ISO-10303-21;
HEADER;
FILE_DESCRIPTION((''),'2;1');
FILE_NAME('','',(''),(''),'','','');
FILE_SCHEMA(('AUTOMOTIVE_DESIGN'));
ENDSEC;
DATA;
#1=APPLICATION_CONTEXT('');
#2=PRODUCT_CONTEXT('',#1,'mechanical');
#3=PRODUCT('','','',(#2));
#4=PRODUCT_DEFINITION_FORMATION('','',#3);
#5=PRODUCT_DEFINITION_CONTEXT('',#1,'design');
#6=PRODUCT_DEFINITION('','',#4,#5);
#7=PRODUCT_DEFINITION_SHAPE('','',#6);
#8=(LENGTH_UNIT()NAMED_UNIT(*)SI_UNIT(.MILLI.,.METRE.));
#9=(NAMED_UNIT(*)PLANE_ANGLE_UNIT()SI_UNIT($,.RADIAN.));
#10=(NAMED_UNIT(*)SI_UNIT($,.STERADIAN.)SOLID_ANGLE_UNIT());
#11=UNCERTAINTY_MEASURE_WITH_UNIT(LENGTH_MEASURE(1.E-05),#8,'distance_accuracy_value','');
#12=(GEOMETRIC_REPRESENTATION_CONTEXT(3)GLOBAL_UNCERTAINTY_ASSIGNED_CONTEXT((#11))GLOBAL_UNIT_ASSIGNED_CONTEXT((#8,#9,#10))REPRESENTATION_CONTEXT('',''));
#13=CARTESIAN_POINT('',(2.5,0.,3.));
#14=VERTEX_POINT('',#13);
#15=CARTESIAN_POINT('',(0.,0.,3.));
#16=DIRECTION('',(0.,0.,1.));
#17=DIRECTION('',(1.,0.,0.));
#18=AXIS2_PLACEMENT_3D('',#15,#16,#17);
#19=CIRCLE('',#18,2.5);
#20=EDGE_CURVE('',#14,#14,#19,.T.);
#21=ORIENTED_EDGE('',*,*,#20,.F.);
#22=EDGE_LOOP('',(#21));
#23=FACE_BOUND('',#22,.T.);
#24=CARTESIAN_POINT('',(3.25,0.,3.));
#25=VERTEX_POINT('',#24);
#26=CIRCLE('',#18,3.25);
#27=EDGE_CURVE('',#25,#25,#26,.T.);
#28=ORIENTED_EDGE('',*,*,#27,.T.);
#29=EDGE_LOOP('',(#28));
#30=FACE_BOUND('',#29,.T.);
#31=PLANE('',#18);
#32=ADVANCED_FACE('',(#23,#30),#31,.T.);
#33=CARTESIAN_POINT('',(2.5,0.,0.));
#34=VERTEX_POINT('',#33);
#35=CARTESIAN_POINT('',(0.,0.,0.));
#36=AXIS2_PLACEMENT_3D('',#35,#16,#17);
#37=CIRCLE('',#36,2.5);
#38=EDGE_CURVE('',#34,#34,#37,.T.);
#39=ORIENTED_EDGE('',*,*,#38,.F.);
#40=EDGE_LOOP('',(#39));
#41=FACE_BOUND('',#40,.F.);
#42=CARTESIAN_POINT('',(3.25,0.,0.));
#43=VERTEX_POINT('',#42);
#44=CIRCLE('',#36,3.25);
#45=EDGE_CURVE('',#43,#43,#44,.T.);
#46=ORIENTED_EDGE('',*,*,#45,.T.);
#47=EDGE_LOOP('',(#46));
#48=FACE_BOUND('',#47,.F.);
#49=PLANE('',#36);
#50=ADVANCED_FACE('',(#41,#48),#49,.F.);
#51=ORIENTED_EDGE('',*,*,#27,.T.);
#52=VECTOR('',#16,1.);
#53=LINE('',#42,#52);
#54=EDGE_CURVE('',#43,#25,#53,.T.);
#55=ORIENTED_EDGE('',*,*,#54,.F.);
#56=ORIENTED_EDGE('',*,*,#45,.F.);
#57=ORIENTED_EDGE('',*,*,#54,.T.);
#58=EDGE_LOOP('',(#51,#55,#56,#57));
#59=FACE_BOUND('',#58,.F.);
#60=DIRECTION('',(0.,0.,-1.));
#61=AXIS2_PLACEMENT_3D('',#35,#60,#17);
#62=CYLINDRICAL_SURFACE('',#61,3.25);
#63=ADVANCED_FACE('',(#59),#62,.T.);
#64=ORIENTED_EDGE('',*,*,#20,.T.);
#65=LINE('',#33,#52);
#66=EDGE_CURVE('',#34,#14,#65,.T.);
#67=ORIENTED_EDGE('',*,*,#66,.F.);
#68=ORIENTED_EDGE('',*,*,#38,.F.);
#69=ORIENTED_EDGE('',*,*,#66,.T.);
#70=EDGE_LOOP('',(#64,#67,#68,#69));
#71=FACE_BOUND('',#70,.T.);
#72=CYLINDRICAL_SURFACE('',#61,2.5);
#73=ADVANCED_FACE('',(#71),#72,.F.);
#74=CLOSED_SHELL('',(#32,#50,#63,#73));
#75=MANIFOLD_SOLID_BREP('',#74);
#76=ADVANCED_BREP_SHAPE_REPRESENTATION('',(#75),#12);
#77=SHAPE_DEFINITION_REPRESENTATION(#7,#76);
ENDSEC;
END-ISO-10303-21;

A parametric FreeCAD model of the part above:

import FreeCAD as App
import Part
import Sketcher
from FreeCAD import Vector

doc = App.newDocument("Part")
body = doc.addObject("PartDesign::Body", "Body")

# Sketch on XY plane
sketch1 = body.newObject("Sketcher::SketchObject", "Sketch")
sketch1.AttachmentSupport = (doc.getObject("XY_Plane"), [""])
sketch1.MapMode = "FlatFace"
sketch1.addGeometry([
    Part.Circle(Vector(0, 0, 0), Vector(0, 0, 1), 3.2),
    Part.Circle(Vector(0, 0, 0), Vector(0, 0, 1), 2.5),
], False)
sketch1.addConstraint([
    Sketcher.Constraint("Coincident", 0, 3, -1, 1),
    Sketcher.Constraint("Coincident", 1, 3, -1, 1),
    Sketcher.Constraint("Diameter", 1, 5.0),
    Sketcher.Constraint("Diameter", 0, 6.5),
])
pad1 = body.newObject("PartDesign::Pad", "Pad")
pad1.Profile = sketch1
pad1.Length = 3

doc.recompute()
